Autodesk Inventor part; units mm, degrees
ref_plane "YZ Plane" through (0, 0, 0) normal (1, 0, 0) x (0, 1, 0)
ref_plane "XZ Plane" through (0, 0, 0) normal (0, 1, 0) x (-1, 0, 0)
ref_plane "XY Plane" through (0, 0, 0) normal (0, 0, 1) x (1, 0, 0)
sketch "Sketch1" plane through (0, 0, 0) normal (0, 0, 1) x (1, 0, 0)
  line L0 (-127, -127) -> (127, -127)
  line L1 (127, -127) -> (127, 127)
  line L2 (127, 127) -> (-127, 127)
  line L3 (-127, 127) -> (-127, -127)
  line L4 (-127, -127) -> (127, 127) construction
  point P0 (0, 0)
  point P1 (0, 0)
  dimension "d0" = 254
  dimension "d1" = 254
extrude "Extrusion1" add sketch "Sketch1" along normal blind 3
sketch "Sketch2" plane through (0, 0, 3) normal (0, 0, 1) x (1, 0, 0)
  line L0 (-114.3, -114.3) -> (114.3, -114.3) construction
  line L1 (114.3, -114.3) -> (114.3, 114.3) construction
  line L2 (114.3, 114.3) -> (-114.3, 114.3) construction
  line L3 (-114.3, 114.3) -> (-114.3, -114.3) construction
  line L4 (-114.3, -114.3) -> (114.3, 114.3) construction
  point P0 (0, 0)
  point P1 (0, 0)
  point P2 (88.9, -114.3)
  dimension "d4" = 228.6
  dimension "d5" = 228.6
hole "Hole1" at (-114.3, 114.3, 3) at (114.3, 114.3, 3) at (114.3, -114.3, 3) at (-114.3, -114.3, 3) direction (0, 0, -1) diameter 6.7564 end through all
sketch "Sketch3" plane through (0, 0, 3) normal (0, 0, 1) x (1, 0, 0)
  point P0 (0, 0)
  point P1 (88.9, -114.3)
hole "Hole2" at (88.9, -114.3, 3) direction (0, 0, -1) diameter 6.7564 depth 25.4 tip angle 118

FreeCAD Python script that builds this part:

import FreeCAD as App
import Part
import Sketcher
from FreeCAD import Vector
Q = App.Units.Quantity

doc = App.newDocument("Part")
body = doc.addObject("PartDesign::Body", "Body")

sketch1 = body.newObject("Sketcher::SketchObject", "Sketch")
sketch1.AttachmentSupport = (doc.getObject("XY_Plane"), [""])
sketch1.MapMode = "FlatFace"
sketch1.addGeometry(Part.LineSegment(Vector(-127, 127, 0), Vector(-127, -127, 0)), False)
sketch1.addGeometry(Part.LineSegment(Vector(-127, -127, 0), Vector(127, -127, 0)), False)
sketch1.addGeometry(Part.LineSegment(Vector(127, -127, 0), Vector(127, 127, 0)), False)
sketch1.addGeometry(Part.LineSegment(Vector(127, 127, 0), Vector(-127, 127, 0)), False)
sketch1.addConstraint(Sketcher.Constraint("Coincident", 0, 2, 1, 1))
sketch1.addConstraint(Sketcher.Constraint("Coincident", 1, 2, 2, 1))
sketch1.addConstraint(Sketcher.Constraint("Coincident", 2, 2, 3, 1))
sketch1.addConstraint(Sketcher.Constraint("Coincident", 3, 2, 0, 1))
sketch1.addConstraint(Sketcher.Constraint("Vertical", 0))
sketch1.addConstraint(Sketcher.Constraint("Horizontal", 1))
sketch1.addConstraint(Sketcher.Constraint("Vertical", 2))
sketch1.addConstraint(Sketcher.Constraint("Horizontal", 3))
sketch1.addConstraint(Sketcher.Constraint("Symmetric", 0, 2, 2, 2, -1, 1))
sketch1.addConstraint(Sketcher.Constraint("Equal", 3, 0))
sketch1.addConstraint(Sketcher.Constraint("DistanceX", 1, 1, 1, 2, Q("10 in")))
pad1 = body.newObject("PartDesign::Pad", "Pad")
pad1.Profile = sketch1
pad1.Length = Q("0.1181102 in")

sketch2 = body.newObject("Sketcher::SketchObject", "Sketch001")
sketch2.AttachmentSupport = (doc.getObject("XY_Plane"), [""])
sketch2.MapMode = "FlatFace"
sketch2.AttachmentOffset = App.Placement(Vector(0, 0, 0.1181102 * 25.4), App.Rotation())
sketch2.addGeometry(Part.Circle(Vector(-114.3, 114.3, 0), Vector(0, 0, 1), 3.4), False)
sketch2.addGeometry(Part.Circle(Vector(114.3, 114.3, 0), Vector(0, 0, 1), 3.4), False)
sketch2.addGeometry(Part.Circle(Vector(114.3, -114.3, 0), Vector(0, 0, 1), 3.4), False)
sketch2.addGeometry(Part.Circle(Vector(-114.3, -114.3, 0), Vector(0, 0, 1), 3.4), False)
sketch2.addConstraint(Sketcher.Constraint("Equal", 0, 1))
sketch2.addConstraint(Sketcher.Constraint("Equal", 1, 2))
sketch2.addConstraint(Sketcher.Constraint("Equal", 2, 3))
sketch2.addConstraint(Sketcher.Constraint("Symmetric", 0, 3, 2, 3, -1, 1))
sketch2.addConstraint(Sketcher.Constraint("Symmetric", 1, 3, 3, 3, -1, 1))
sketch2.addConstraint(Sketcher.Constraint("Symmetric", 0, 3, 1, 3, -2))
sketch2.addConstraint(Sketcher.Constraint("Diameter", 0, Q("0.266 in")))
sketch2.addConstraint(Sketcher.Constraint("DistanceX", 0, 3, 1, 3, Q("9 in")))
sketch2.addConstraint(Sketcher.Constraint("DistanceY", 2, 3, 1, 3, Q("9 in")))
doc.recompute()
hole = body.newObject("PartDesign::Hole", "Hole")
hole.Profile = sketch2
hole.ThreadType = "None"
hole.Diameter = Q("0.266 in")
hole.DepthType = "ThroughAll"

sketch3 = body.newObject("Sketcher::SketchObject", "Sketch002")
sketch3.AttachmentSupport = (doc.getObject("XY_Plane"), [""])
sketch3.MapMode = "FlatFace"
sketch3.AttachmentOffset = App.Placement(Vector(0, 0, 0.1181102 * 25.4), App.Rotation())
sketch3.addGeometry(Part.Circle(Vector(88.9, -114.3, 0), Vector(0, 0, 1), 3.4), False)
sketch3.addConstraint(Sketcher.Constraint("Diameter", 0, Q("0.266 in")))
sketch3.addConstraint(Sketcher.Constraint("DistanceX", -1, 1, 0, 3, Q("3.5 in")))
sketch3.addConstraint(Sketcher.Constraint("DistanceY", 0, 3, -1, 1, Q("4.5 in")))
doc.recompute()
hole2 = body.newObject("PartDesign::Hole", "Hole001")
hole2.Profile = sketch3
hole2.ThreadType = "None"
hole2.Diameter = Q("0.266 in")
hole2.DepthType = "Dimension"
hole2.Depth = Q("1 in")
hole2.DrillPoint = "Angled"
hole2.DrillPointAngle = 118

doc.recompute()
